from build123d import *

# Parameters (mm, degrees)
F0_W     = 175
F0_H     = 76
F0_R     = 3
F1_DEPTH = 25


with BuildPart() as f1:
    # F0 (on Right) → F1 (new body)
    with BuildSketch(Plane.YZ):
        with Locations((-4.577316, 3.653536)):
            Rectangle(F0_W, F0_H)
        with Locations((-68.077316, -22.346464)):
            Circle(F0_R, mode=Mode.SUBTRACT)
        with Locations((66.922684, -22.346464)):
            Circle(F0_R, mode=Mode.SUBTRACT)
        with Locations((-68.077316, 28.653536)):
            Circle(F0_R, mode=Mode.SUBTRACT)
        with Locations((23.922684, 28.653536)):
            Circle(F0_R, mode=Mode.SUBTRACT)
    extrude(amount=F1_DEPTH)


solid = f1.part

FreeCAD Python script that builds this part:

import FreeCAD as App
import Part
import Sketcher
from FreeCAD import Vector

doc = App.newDocument("Part")
body = doc.addObject("PartDesign::Body", "Body")

# Sketch on YZ plane
sketch1 = body.newObject("Sketcher::SketchObject", "Sketch")
sketch1.AttachmentSupport = (doc.getObject("YZ_Plane"), [""])
sketch1.MapMode = "FlatFace"
sketch1.addGeometry([
    Part.LineSegment(Vector(-92.1, 41.7, 0), Vector(-92.1, -34.3, 0)),  # 0
    Part.LineSegment(Vector(-92.1, -34.3, 0), Vector(82.9, -34.3, 0)),  # 1
    Part.LineSegment(Vector(82.9, -34.3, 0), Vector(82.9, 41.7, 0)),  # 2
    Part.LineSegment(Vector(82.9, 41.7, 0), Vector(-92.1, 41.7, 0)),  # 3
    Part.Circle(Vector(-68.1, -22.3, 0), Vector(0, 0, 1), 3),  # 4
    Part.Circle(Vector(66.9, -22.3, 0), Vector(0, 0, 1), 3),  # 5
    Part.Circle(Vector(-68.1, 28.7, 0), Vector(0, 0, 1), 3),  # 6
    Part.Circle(Vector(23.9, 28.7, 0), Vector(0, 0, 1), 3),  # 7
], False)
sketch1.addConstraint([
    Sketcher.Constraint("Coincident", 0, 2, 1, 1),
    Sketcher.Constraint("Coincident", 1, 2, 2, 1),
    Sketcher.Constraint("Coincident", 2, 2, 3, 1),
    Sketcher.Constraint("Coincident", 3, 2, 0, 1),
    Sketcher.Constraint("Vertical", 0),
    Sketcher.Constraint("Horizontal", 1),
    Sketcher.Constraint("Vertical", 2),
    Sketcher.Constraint("Horizontal", 3),
    Sketcher.Constraint("Equal", 4, 5),
    Sketcher.Constraint("Equal", 5, 6),
    Sketcher.Constraint("Equal", 6, 7),
    Sketcher.Constraint("Horizontal", 4, 3, 5, 3),
    Sketcher.Constraint("Horizontal", 6, 3, 7, 3),
    Sketcher.Constraint("Vertical", 4, 3, 6, 3),
    Sketcher.Constraint("Diameter", 4, 6.0),
    Sketcher.Constraint("DistanceX", 1, 1, 1, 2, 175.0),
    Sketcher.Constraint("DistanceY", 0, 2, 0, 1, 76.0),
    Sketcher.Constraint("DistanceX", 4, 3, 5, 3, 135.0),
    Sketcher.Constraint("DistanceY", 4, 3, 6, 3, 51.0),
    Sketcher.Constraint("DistanceX", 7, 3, 5, 3, 43.0),
    Sketcher.Constraint("DistanceX", 0, 2, 4, 3, 24.0),
    Sketcher.Constraint("DistanceY", 0, 2, 4, 3, 12.0),
    Sketcher.Constraint("DistanceX", 4, 3, -1, 1, 68.077316),
    Sketcher.Constraint("DistanceY", 4, 3, -1, 1, 22.346464),
])
pad1 = body.newObject("PartDesign::Pad", "Pad")
pad1.Profile = sketch1
pad1.Length = 25

doc.recompute()
